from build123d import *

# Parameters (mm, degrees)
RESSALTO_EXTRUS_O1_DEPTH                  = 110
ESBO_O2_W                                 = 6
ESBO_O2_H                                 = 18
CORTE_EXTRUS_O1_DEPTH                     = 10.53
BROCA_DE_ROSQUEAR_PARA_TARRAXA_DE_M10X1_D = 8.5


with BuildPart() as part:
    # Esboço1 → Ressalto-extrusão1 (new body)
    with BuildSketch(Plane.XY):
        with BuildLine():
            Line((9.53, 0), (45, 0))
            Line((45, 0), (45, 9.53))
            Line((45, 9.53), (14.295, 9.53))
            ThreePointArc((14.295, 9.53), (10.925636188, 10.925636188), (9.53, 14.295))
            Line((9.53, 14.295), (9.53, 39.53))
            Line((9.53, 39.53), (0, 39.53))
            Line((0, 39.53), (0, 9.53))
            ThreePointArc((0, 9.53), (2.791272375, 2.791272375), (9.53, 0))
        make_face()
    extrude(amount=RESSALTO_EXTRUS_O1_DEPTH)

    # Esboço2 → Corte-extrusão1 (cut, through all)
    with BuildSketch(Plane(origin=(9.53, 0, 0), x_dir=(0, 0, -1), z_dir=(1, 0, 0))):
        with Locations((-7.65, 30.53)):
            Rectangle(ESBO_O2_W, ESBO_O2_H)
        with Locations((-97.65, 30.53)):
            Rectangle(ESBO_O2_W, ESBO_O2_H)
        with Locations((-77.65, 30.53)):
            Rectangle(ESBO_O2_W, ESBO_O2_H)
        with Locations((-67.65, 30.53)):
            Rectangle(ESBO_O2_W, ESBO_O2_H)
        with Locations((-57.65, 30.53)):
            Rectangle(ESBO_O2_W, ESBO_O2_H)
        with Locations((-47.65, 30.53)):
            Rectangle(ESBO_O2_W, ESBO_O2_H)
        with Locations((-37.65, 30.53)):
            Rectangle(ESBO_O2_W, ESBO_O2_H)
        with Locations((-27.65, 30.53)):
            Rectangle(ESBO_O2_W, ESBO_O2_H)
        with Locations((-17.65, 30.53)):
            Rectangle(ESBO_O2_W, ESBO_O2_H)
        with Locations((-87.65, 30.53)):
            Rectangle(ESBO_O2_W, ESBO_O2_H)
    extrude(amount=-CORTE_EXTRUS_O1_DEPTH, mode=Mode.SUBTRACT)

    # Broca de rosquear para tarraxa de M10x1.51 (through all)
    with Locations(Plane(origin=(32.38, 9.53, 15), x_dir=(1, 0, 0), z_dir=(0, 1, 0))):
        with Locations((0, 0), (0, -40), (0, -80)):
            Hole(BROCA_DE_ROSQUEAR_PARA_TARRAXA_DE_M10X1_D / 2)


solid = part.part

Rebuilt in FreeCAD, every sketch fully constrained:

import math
import FreeCAD as App
import Part
import Sketcher

V = App.Vector
Q = App.Units.Quantity


def add_polygon(sketch, points):
    """Adds a closed chain of lines whose ends are joined by coincident constraints."""
    first, n = sketch.GeometryCount, len(points)
    for a, b in zip(points, points[1:] + points[:1]):
        sketch.addGeometry(Part.LineSegment(App.Vector(*a, 0), App.Vector(*b, 0)), False)
    for i in range(n):
        sketch.addConstraint(Sketcher.Constraint("Coincident", first + i, 2, first + (i + 1) % n, 1))

doc = App.newDocument("Part")
body = doc.addObject("PartDesign::Body", "Body")

sketch1 = body.newObject("Sketcher::SketchObject", "Sketch")
sketch1.AttachmentSupport = (doc.getObject("XY_Plane"), [""])
sketch1.MapMode = "FlatFace"
sketch1.addGeometry(Part.LineSegment(V(9.5, 0, 0), V(45, 0, 0)), False)
sketch1.addGeometry(Part.LineSegment(V(45, 0, 0), V(45, 9.5, 0)), False)
sketch1.addGeometry(Part.LineSegment(V(45, 9.5, 0), V(14.3, 9.5, 0)), False)
sketch1.addGeometry(Part.ArcOfCircle(Part.Circle(V(14.3, 14.3, 0), V(0, 0, 1), 4.8), math.radians(-180), math.radians(-90)), False)
sketch1.addGeometry(Part.LineSegment(V(9.5, 14.3, 0), V(9.5, 39.5, 0)), False)
sketch1.addGeometry(Part.LineSegment(V(9.5, 39.5, 0), V(0, 39.5, 0)), False)
sketch1.addGeometry(Part.LineSegment(V(0, 39.5, 0), V(0, 9.5, 0)), False)
sketch1.addGeometry(Part.ArcOfCircle(Part.Circle(V(9.5, 9.5, 0), V(0, 0, 1), 9.5), math.radians(180), math.radians(270)), False)
sketch1.addConstraint(Sketcher.Constraint("Coincident", 0, 2, 1, 1))
sketch1.addConstraint(Sketcher.Constraint("Coincident", 1, 2, 2, 1))
sketch1.addConstraint(Sketcher.Constraint("Tangent", 2, 2, 3, 2))
sketch1.addConstraint(Sketcher.Constraint("Tangent", 3, 1, 4, 1))
sketch1.addConstraint(Sketcher.Constraint("Coincident", 4, 2, 5, 1))
sketch1.addConstraint(Sketcher.Constraint("Coincident", 5, 2, 6, 1))
sketch1.addConstraint(Sketcher.Constraint("Tangent", 6, 2, 7, 1))
sketch1.addConstraint(Sketcher.Constraint("Tangent", 7, 2, 0, 1))
sketch1.addConstraint(Sketcher.Constraint("Horizontal", 0))
sketch1.addConstraint(Sketcher.Constraint("Vertical", 1))
sketch1.addConstraint(Sketcher.Constraint("Horizontal", 2))
sketch1.addConstraint(Sketcher.Constraint("Vertical", 4))
sketch1.addConstraint(Sketcher.Constraint("Horizontal", 5))
sketch1.addConstraint(Sketcher.Constraint("Vertical", 6))
sketch1.addConstraint(Sketcher.Constraint("PointOnObject", 0, 2, -1))
sketch1.addConstraint(Sketcher.Constraint("PointOnObject", 5, 2, -2))
sketch1.addConstraint(Sketcher.Constraint("Horizontal", 7, 3, 1, 2))
sketch1.addConstraint(Sketcher.Constraint("Vertical", 7, 3, 3, 1))
sketch1.addConstraint(Sketcher.Constraint("DistanceY", 6, 2, 6, 1, Q("30 mm")))
sketch1.addConstraint(Sketcher.Constraint("Radius", 7, Q("9.53 mm")))
sketch1.addConstraint(Sketcher.Constraint("DistanceX", -1, 1, 0, 2, Q("45 mm")))
sketch1.addConstraint(Sketcher.Constraint("Radius", 3, Q("4.765 mm")))
pad1 = body.newObject("PartDesign::Pad", "Pad")
pad1.Profile = sketch1
pad1.Length = 110

sketch2 = body.newObject("Sketcher::SketchObject", "Sketch001")
sketch2.AttachmentSupport = (doc.getObject("YZ_Plane"), [""])
sketch2.MapMode = "FlatFace"
sketch2.AttachmentOffset = App.Placement(V(0, 0, 9.53), App.Rotation())
add_polygon(sketch2, [(40, 11), (22, 11), (22, 5), (40, 5)])
add_polygon(sketch2, [(40, 101), (22, 101), (22, 95), (40, 95)])
add_polygon(sketch2, [(40, 81), (22, 81), (22, 75), (40, 75)])
add_polygon(sketch2, [(40, 71), (22, 71), (22, 65), (40, 65)])
add_polygon(sketch2, [(40, 61), (22, 61), (22, 55), (40, 55)])
add_polygon(sketch2, [(40, 51), (22, 51), (22, 45), (40, 45)])
add_polygon(sketch2, [(40, 41), (22, 41), (22, 35), (40, 35)])
add_polygon(sketch2, [(40, 31), (22, 31), (22, 25), (40, 25)])
add_polygon(sketch2, [(40, 21), (22, 21), (22, 15), (40, 15)])
add_polygon(sketch2, [(40, 91), (22, 91), (22, 85), (40, 85)])
sketch2.addConstraint(Sketcher.Constraint("Horizontal", 0))
sketch2.addConstraint(Sketcher.Constraint("Vertical", 1))
sketch2.addConstraint(Sketcher.Constraint("Horizontal", 2))
sketch2.addConstraint(Sketcher.Constraint("Vertical", 3))
sketch2.addConstraint(Sketcher.Constraint("Horizontal", 4))
sketch2.addConstraint(Sketcher.Constraint("Vertical", 5))
sketch2.addConstraint(Sketcher.Constraint("Horizontal", 6))
sketch2.addConstraint(Sketcher.Constraint("Vertical", 7))
sketch2.addConstraint(Sketcher.Constraint("Horizontal", 8))
sketch2.addConstraint(Sketcher.Constraint("Vertical", 9))
sketch2.addConstraint(Sketcher.Constraint("Horizontal", 10))
sketch2.addConstraint(Sketcher.Constraint("Vertical", 11))
sketch2.addConstraint(Sketcher.Constraint("Horizontal", 12))
sketch2.addConstraint(Sketcher.Constraint("Vertical", 13))
sketch2.addConstraint(Sketcher.Constraint("Horizontal", 14))
sketch2.addConstraint(Sketcher.Constraint("Vertical", 15))
sketch2.addConstraint(Sketcher.Constraint("Horizontal", 16))
sketch2.addConstraint(Sketcher.Constraint("Vertical", 17))
sketch2.addConstraint(Sketcher.Constraint("Horizontal", 18))
sketch2.addConstraint(Sketcher.Constraint("Vertical", 19))
sketch2.addConstraint(Sketcher.Constraint("Horizontal", 20))
sketch2.addConstraint(Sketcher.Constraint("Vertical", 21))
sketch2.addConstraint(Sketcher.Constraint("Horizontal", 22))
sketch2.addConstraint(Sketcher.Constraint("Vertical", 23))
sketch2.addConstraint(Sketcher.Constraint("Horizontal", 24))
sketch2.addConstraint(Sketcher.Constraint("Vertical", 25))
sketch2.addConstraint(Sketcher.Constraint("Horizontal", 26))
sketch2.addConstraint(Sketcher.Constraint("Vertical", 27))
sketch2.addConstraint(Sketcher.Constraint("Horizontal", 28))
sketch2.addConstraint(Sketcher.Constraint("Vertical", 29))
sketch2.addConstraint(Sketcher.Constraint("Horizontal", 30))
sketch2.addConstraint(Sketcher.Constraint("Vertical", 31))
sketch2.addConstraint(Sketcher.Constraint("Horizontal", 32))
sketch2.addConstraint(Sketcher.Constraint("Vertical", 33))
sketch2.addConstraint(Sketcher.Constraint("Horizontal", 34))
sketch2.addConstraint(Sketcher.Constraint("Vertical", 35))
sketch2.addConstraint(Sketcher.Constraint("Horizontal", 36))
sketch2.addConstraint(Sketcher.Constraint("Vertical", 37))
sketch2.addConstraint(Sketcher.Constraint("Horizontal", 38))
sketch2.addConstraint(Sketcher.Constraint("Vertical", 39))
sketch2.addConstraint(Sketcher.Constraint("Vertical", 1, 2, 4, 2))
sketch2.addConstraint(Sketcher.Constraint("Vertical", 3, 2, 6, 2))
sketch2.addConstraint(Sketcher.Constraint("Vertical", 5, 2, 8, 2))
sketch2.addConstraint(Sketcher.Constraint("Vertical", 7, 2, 10, 2))
sketch2.addConstraint(Sketcher.Constraint("Vertical", 9, 2, 12, 2))
sketch2.addConstraint(Sketcher.Constraint("Vertical", 11, 2, 14, 2))
sketch2.addConstraint(Sketcher.Constraint("Vertical", 13, 2, 16, 2))
sketch2.addConstraint(Sketcher.Constraint("Vertical", 15, 2, 18, 2))
sketch2.addConstraint(Sketcher.Constraint("Vertical", 17, 2, 20, 2))
sketch2.addConstraint(Sketcher.Constraint("Vertical", 19, 2, 22, 2))
sketch2.addConstraint(Sketcher.Constraint("Vertical", 21, 2, 24, 2))
sketch2.addConstraint(Sketcher.Constraint("Vertical", 23, 2, 26, 2))
sketch2.addConstraint(Sketcher.Constraint("Vertical", 25, 2, 28, 2))
sketch2.addConstraint(Sketcher.Constraint("Vertical", 27, 2, 30, 2))
sketch2.addConstraint(Sketcher.Constraint("Vertical", 29, 2, 32, 2))
sketch2.addConstraint(Sketcher.Constraint("Vertical", 31, 2, 34, 2))
sketch2.addConstraint(Sketcher.Constraint("Vertical", 33, 2, 36, 2))
sketch2.addConstraint(Sketcher.Constraint("Vertical", 35, 2, 38, 2))
sketch2.addConstraint(Sketcher.Constraint("Equal", 3, 5))
sketch2.addConstraint(Sketcher.Constraint("Equal", 7, 9))
sketch2.addConstraint(Sketcher.Constraint("Equal", 11, 13))
sketch2.addConstraint(Sketcher.Constraint("Equal", 15, 17))
sketch2.addConstraint(Sketcher.Constraint("Equal", 19, 21))
sketch2.addConstraint(Sketcher.Constraint("Equal", 23, 25))
sketch2.addConstraint(Sketcher.Constraint("Equal", 27, 29))
sketch2.addConstraint(Sketcher.Constraint("Equal", 31, 33))
sketch2.addConstraint(Sketcher.Constraint("Equal", 35, 37))
sketch2.addConstraint(Sketcher.Constraint("DistanceX", 0, 2, 0, 1, Q("18 mm")))
sketch2.addConstraint(Sketcher.Constraint("DistanceY", 1, 2, 1, 1, Q("6 mm")))
sketch2.addConstraint(Sketcher.Constraint("DistanceY", 0, 2, 4, 2, Q("90 mm")))
sketch2.addConstraint(Sketcher.Constraint("DistanceY", 8, 2, 5, 2, Q("14 mm")))
sketch2.addConstraint(Sketcher.Constraint("DistanceY", 12, 2, 9, 2, Q("4 mm")))
sketch2.addConstraint(Sketcher.Constraint("DistanceY", 16, 2, 13, 2, Q("4 mm")))
sketch2.addConstraint(Sketcher.Constraint("DistanceY", 20, 2, 17, 2, Q("4 mm")))
sketch2.addConstraint(Sketcher.Constraint("DistanceY", 24, 2, 21, 2, Q("4 mm")))
sketch2.addConstraint(Sketcher.Constraint("DistanceY", 28, 2, 25, 2, Q("4 mm")))
sketch2.addConstraint(Sketcher.Constraint("DistanceY", 32, 2, 29, 2, Q("4 mm")))
sketch2.addConstraint(Sketcher.Constraint("DistanceY", 36, 2, 5, 2, Q("4 mm")))
sketch2.addConstraint(Sketcher.Constraint("DistanceX", -1, 1, 0, 2, Q("21.53 mm")))
sketch2.addConstraint(Sketcher.Constraint("DistanceY", -1, 1, 0, 2, Q("10.65 mm")))
pocket1 = body.newObject("PartDesign::Pocket", "Pocket")
pocket1.Profile = sketch2
pocket1.Type = "ThroughAll"

sketch3 = body.newObject("Sketcher::SketchObject", "Sketch002")
sketch3.AttachmentSupport = (doc.getObject("XZ_Plane"), [""])
sketch3.MapMode = "FlatFace"
sketch3.AttachmentOffset = App.Placement(V(0, 0, -9.53), App.Rotation())
sketch3.addGeometry(Part.Circle(V(32.4, 15, 0), V(0, 0, 1), 4.2), False)
sketch3.addGeometry(Part.Circle(V(32.4, 55, 0), V(0, 0, 1), 4.2), False)
sketch3.addGeometry(Part.Circle(V(32.4, 95, 0), V(0, 0, 1), 4.2), False)
sketch3.addConstraint(Sketcher.Constraint("Equal", 0, 1))
sketch3.addConstraint(Sketcher.Constraint("Equal", 1, 2))
sketch3.addConstraint(Sketcher.Constraint("Vertical", 0, 3, 1, 3))
sketch3.addConstraint(Sketcher.Constraint("Vertical", 1, 3, 2, 3))
sketch3.addConstraint(Sketcher.Constraint("Diameter", 0, Q("8.5 mm")))
sketch3.addConstraint(Sketcher.Constraint("DistanceY", -1, 1, 0, 3, Q("15 mm")))
sketch3.addConstraint(Sketcher.Constraint("DistanceY", -1, 1, 1, 3, Q("55 mm")))
sketch3.addConstraint(Sketcher.Constraint("DistanceY", -1, 1, 2, 3, Q("95 mm")))
sketch3.addConstraint(Sketcher.Constraint("DistanceX", -1, 1, 0, 3, Q("32.38 mm")))
doc.recompute()
hole = body.newObject("PartDesign::Hole", "Hole")
hole.Profile = sketch3
hole.ThreadType = "None"
hole.Diameter = 8.5
hole.DepthType = "ThroughAll"
hole.Reversed = True

doc.recompute()
